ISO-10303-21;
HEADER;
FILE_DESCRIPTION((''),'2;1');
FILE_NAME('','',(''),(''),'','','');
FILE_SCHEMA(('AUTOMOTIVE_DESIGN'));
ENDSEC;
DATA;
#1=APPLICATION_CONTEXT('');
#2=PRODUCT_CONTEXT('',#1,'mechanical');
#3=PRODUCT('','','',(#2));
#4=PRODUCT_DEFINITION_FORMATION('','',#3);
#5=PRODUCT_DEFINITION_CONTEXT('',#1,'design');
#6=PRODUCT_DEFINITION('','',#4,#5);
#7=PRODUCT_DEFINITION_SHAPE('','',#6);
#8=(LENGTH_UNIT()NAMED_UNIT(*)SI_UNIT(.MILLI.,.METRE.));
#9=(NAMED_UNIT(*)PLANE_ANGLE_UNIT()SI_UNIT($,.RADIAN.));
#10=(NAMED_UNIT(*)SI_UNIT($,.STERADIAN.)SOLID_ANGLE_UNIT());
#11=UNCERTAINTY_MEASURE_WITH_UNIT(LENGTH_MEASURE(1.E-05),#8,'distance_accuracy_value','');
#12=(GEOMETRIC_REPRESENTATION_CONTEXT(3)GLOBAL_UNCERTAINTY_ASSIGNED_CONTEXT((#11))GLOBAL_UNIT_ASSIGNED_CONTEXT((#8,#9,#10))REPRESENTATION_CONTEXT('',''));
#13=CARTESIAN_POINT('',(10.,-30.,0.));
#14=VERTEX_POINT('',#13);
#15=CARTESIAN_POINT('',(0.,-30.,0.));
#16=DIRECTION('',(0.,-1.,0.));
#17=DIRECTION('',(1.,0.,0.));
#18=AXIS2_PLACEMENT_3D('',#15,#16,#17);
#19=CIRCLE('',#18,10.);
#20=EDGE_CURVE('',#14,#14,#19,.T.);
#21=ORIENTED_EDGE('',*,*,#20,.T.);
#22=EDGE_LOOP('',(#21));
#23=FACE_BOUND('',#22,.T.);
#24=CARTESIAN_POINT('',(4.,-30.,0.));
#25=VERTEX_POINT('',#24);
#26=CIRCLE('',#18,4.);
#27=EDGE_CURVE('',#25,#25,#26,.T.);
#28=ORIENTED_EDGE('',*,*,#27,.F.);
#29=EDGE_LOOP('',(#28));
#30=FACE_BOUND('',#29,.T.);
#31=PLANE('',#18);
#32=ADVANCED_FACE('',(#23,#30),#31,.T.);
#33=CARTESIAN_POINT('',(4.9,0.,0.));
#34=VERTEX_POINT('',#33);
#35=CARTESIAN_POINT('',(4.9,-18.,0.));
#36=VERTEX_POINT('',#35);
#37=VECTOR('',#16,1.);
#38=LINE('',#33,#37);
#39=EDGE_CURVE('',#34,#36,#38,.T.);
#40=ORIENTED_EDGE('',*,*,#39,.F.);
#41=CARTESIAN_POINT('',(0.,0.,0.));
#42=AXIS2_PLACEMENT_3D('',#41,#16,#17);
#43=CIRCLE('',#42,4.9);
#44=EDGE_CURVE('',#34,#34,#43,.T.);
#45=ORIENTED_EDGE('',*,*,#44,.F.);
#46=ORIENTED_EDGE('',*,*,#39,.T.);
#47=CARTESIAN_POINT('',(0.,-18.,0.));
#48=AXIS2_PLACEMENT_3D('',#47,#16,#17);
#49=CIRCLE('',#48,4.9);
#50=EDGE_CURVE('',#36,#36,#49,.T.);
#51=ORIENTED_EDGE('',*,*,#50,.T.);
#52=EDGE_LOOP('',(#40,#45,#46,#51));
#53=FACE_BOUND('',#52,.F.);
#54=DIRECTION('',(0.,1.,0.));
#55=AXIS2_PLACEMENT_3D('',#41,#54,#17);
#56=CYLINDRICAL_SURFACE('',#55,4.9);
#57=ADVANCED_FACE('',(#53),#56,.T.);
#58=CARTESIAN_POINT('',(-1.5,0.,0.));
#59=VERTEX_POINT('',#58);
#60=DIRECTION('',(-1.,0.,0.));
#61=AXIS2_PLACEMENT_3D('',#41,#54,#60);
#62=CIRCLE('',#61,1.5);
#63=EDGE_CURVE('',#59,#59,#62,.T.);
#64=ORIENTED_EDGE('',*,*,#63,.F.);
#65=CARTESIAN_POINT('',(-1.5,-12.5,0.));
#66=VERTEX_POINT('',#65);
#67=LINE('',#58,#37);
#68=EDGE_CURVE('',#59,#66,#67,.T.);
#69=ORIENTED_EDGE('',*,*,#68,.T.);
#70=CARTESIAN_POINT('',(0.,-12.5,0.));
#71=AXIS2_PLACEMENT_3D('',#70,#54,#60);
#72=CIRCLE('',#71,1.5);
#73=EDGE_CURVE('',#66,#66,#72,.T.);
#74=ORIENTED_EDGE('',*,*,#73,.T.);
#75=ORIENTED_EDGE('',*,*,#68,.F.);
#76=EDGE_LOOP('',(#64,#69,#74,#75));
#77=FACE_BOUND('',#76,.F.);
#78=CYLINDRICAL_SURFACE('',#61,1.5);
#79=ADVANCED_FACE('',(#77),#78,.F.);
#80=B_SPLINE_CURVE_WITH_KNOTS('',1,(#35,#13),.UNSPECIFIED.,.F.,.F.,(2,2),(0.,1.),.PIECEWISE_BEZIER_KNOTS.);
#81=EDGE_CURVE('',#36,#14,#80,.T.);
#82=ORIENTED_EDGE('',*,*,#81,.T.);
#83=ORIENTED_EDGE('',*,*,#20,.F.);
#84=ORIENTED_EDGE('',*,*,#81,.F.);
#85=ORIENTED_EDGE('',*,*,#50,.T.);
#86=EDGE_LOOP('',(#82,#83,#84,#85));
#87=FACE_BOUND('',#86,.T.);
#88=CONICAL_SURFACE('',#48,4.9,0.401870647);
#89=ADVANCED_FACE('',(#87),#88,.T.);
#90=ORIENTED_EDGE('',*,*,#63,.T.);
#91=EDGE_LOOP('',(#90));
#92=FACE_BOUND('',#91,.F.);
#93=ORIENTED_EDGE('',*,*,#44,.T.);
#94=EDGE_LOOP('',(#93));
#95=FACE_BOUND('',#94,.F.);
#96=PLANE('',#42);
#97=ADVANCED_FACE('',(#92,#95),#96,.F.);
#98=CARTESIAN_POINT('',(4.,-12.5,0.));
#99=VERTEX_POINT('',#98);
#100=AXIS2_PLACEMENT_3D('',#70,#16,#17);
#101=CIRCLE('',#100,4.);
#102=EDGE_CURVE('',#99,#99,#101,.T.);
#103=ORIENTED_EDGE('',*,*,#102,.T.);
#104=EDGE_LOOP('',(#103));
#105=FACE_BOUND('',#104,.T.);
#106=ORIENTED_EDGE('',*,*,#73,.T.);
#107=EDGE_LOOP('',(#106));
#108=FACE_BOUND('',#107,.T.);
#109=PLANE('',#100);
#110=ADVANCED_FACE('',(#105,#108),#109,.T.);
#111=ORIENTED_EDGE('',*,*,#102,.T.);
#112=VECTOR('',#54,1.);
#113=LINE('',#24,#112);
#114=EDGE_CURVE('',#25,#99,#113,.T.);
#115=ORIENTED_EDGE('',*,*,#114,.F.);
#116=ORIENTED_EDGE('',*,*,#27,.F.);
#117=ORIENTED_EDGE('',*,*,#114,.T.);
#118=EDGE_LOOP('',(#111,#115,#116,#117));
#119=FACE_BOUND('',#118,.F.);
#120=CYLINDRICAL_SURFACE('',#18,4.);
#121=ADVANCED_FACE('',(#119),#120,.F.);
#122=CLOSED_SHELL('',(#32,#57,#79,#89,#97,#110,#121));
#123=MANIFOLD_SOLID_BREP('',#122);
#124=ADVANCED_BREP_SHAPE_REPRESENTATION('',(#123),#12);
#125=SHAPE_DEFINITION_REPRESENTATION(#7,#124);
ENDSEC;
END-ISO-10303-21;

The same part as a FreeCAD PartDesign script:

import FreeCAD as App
import Part
import Sketcher
from FreeCAD import Vector
Q = App.Units.Quantity

doc = App.newDocument("Part")
params = doc.addObject("Spreadsheet::Sheet", "Params")
for row, (alias, value) in enumerate([
    ("sketch1_diameter", "9.8 mm"),
    ("pad1_length", "18 mm"),
    ("sketch2_diameter", "9.8 mm"),
    ("sketch3_diameter", "20 mm"),
    ("sketch4_diameter", "3 mm"),
    ("pocket1_length", "15 mm"),
    ("sketch5_diameter", "8 mm"),
    ("pocket2_length", "17.5 mm"),
], start=1):
    params.set(f"A{row}", alias)
    params.set(f"B{row}", "=" + value)
    params.setAlias(f"B{row}", alias)

body = doc.addObject("PartDesign::Body", "Body")

# Sketch on XZ plane
sketch1 = body.newObject("Sketcher::SketchObject", "Sketch")
sketch1.AttachmentSupport = (doc.getObject("XZ_Plane"), [""])
sketch1.MapMode = "FlatFace"
sketch1.addGeometry(Part.Circle(Vector(0, 0, 0), Vector(0, 0, 1), 4.9), False)
sketch1.addConstraint([
    Sketcher.Constraint("Coincident", 0, 3, -1, 1),
    Sketcher.Constraint("Diameter", 0, Q("9.8 mm")),
])
sketch1.setExpression("Constraints[1]", "Params.sketch1_diameter")
pad1 = body.newObject("PartDesign::Pad", "Pad")
pad1.Profile = sketch1
pad1.setExpression("Length", "Params.pad1_length")

# Sketch on XZ plane
sketch2 = body.newObject("Sketcher::SketchObject", "Sketch001")
sketch2.AttachmentSupport = (doc.getObject("XZ_Plane"), [""])
sketch2.MapMode = "FlatFace"
sketch2.AttachmentOffset = App.Placement(Vector(0, 0, 18), App.Rotation())
sketch2.addGeometry(Part.Circle(Vector(0, 0, 0), Vector(0, 0, 1), 4.9), False)
sketch2.addConstraint([
    Sketcher.Constraint("Coincident", 0, 3, -1, 1),
    Sketcher.Constraint("Diameter", 0, Q("9.8 mm")),
])
sketch2.setExpression("Constraints[1]", "Params.sketch2_diameter")

# Sketch on XZ plane
sketch3 = body.newObject("Sketcher::SketchObject", "Sketch002")
sketch3.AttachmentSupport = (doc.getObject("XZ_Plane"), [""])
sketch3.MapMode = "FlatFace"
sketch3.AttachmentOffset = App.Placement(Vector(0, 0, 30), App.Rotation())
sketch3.addGeometry(Part.Circle(Vector(0, 0, 0), Vector(0, 0, 1), 10), False)
sketch3.addConstraint([
    Sketcher.Constraint("Coincident", 0, 3, -1, 1),
    Sketcher.Constraint("Diameter", 0, Q("20 mm")),
])
sketch3.setExpression("Constraints[1]", "Params.sketch3_diameter")

additiveloft = body.newObject("PartDesign::AdditiveLoft", "AdditiveLoft")
additiveloft.Profile = sketch2
additiveloft.Sections = [sketch3]

# Sketch on XZ plane
sketch4 = body.newObject("Sketcher::SketchObject", "Sketch003")
sketch4.AttachmentSupport = (doc.getObject("XZ_Plane"), [""])
sketch4.MapMode = "FlatFace"
sketch4.addGeometry(Part.Circle(Vector(0, 0, 0), Vector(0, 0, 1), 1.5), False)
sketch4.addConstraint([
    Sketcher.Constraint("Coincident", 0, 3, -1, 1),
    Sketcher.Constraint("Diameter", 0, Q("3 mm")),
])
sketch4.setExpression("Constraints[1]", "Params.sketch4_diameter")
pocket1 = body.newObject("PartDesign::Pocket", "Pocket")
pocket1.Profile = sketch4
pocket1.setExpression("Length", "Params.pocket1_length")
pocket1.Reversed = True

# Sketch on XZ plane
sketch5 = body.newObject("Sketcher::SketchObject", "Sketch004")
sketch5.AttachmentSupport = (doc.getObject("XZ_Plane"), [""])
sketch5.MapMode = "FlatFace"
sketch5.AttachmentOffset = App.Placement(Vector(0, 0, 30), App.Rotation())
sketch5.addGeometry(Part.Circle(Vector(0, 0, 0), Vector(0, 0, 1), 4), False)
sketch5.addConstraint([
    Sketcher.Constraint("Coincident", 0, 3, -1, 1),
    Sketcher.Constraint("Diameter", 0, Q("8 mm")),
])
sketch5.setExpression("Constraints[1]", "Params.sketch5_diameter")
pocket2 = body.newObject("PartDesign::Pocket", "Pocket001")
pocket2.Profile = sketch5
pocket2.setExpression("Length", "Params.pocket2_length")

doc.recompute()
